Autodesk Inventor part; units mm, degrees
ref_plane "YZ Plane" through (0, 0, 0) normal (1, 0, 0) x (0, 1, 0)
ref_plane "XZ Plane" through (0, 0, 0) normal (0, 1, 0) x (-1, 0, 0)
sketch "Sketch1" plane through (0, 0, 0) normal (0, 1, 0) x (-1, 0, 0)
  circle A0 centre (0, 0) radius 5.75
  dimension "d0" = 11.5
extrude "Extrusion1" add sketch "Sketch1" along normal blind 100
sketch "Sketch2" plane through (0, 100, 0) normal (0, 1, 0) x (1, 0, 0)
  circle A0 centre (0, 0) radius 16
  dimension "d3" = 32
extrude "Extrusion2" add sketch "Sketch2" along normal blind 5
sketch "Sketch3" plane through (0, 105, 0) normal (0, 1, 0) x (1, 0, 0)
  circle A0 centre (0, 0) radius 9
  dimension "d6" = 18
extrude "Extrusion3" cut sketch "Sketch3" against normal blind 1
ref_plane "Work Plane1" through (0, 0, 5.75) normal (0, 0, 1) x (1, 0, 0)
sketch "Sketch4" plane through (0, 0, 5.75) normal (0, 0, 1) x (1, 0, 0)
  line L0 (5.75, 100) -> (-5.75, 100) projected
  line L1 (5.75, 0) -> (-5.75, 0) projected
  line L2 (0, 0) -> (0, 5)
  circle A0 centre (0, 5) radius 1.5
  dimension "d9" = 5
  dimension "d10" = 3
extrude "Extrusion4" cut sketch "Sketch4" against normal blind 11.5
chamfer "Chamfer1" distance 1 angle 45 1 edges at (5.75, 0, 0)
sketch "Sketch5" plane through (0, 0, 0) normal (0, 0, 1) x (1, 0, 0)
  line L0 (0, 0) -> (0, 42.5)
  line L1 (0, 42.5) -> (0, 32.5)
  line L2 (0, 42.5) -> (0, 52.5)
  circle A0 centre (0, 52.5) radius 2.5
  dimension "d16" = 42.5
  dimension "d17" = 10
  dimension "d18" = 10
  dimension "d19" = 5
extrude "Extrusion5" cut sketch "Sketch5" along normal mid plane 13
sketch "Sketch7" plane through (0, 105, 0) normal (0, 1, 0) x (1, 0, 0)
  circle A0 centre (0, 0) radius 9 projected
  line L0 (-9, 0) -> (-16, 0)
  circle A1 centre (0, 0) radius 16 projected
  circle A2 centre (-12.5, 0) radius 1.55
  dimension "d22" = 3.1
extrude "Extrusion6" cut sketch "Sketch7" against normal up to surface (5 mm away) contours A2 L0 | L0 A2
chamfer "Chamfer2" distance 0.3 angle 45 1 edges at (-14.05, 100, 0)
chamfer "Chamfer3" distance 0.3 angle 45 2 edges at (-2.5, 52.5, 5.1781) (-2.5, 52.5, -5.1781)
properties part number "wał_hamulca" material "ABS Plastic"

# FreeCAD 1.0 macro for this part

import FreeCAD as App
import Part
import Sketcher
from FreeCAD import Vector


def edges_at(feature, points):
    """Names of the edges that pass closest to the given points."""
    edges = feature.Shape.Edges
    near = lambda p: min(range(len(edges)), key=lambda i: edges[i].distToShape(Part.Vertex(*p))[0])
    return sorted({f"Edge{near(p) + 1}" for p in points})

doc = App.newDocument("Part")
body = doc.addObject("PartDesign::Body", "Body")

# Sketch on XZ plane
sketch1 = doc.addObject("Sketcher::SketchObject", "Sketch")
body.addObject(sketch1)
sketch1.AttachmentSupport = (doc.XZ_Plane, [""])
sketch1.MapMode = "FlatFace"
sketch1.addGeometry(Part.Circle(Vector(0, 0, 0), Vector(0, 0, 1), 5.75), False)
sketch1.addConstraint([
    Sketcher.Constraint("Coincident", 0, 3, -1, 1),
    Sketcher.Constraint("Diameter", 0, 11.5),
])
pad1 = doc.addObject("PartDesign::Pad", "Pad")
body.addObject(pad1)
pad1.Profile = sketch1
pad1.Length = 100
pad1.Reversed = True

# Sketch on XZ plane
sketch2 = doc.addObject("Sketcher::SketchObject", "Sketch001")
body.addObject(sketch2)
sketch2.AttachmentSupport = (doc.XZ_Plane, [""])
sketch2.MapMode = "FlatFace"
sketch2.AttachmentOffset = App.Placement(Vector(0, 0, -100), App.Rotation())
sketch2.addGeometry(Part.Circle(Vector(0, 0, 0), Vector(0, 0, 1), 16), False)
sketch2.addConstraint([
    Sketcher.Constraint("Coincident", 0, 3, -1, 1),
    Sketcher.Constraint("Diameter", 0, 32.0),
])
pad2 = doc.addObject("PartDesign::Pad", "Pad001")
body.addObject(pad2)
pad2.Profile = sketch2
pad2.Length = 5
pad2.Reversed = True

# Sketch on XZ plane
sketch3 = doc.addObject("Sketcher::SketchObject", "Sketch002")
body.addObject(sketch3)
sketch3.AttachmentSupport = (doc.XZ_Plane, [""])
sketch3.MapMode = "FlatFace"
sketch3.AttachmentOffset = App.Placement(Vector(0, 0, -105), App.Rotation())
sketch3.addGeometry(Part.Circle(Vector(0, 0, 0), Vector(0, 0, 1), 9), False)
sketch3.addConstraint([
    Sketcher.Constraint("Coincident", 0, 3, -1, 1),
    Sketcher.Constraint("Diameter", 0, 18.0),
])
pocket1 = doc.addObject("PartDesign::Pocket", "Pocket")
body.addObject(pocket1)
pocket1.Profile = sketch3
pocket1.Length = 1
pocket1.Reversed = True

# Sketch on XY plane
sketch4 = doc.addObject("Sketcher::SketchObject", "Sketch003")
body.addObject(sketch4)
sketch4.AttachmentSupport = (doc.XY_Plane, [""])
sketch4.MapMode = "FlatFace"
sketch4.AttachmentOffset = App.Placement(Vector(0, 0, 5.75), App.Rotation())
sketch4.addGeometry(Part.Circle(Vector(0, 5, 0), Vector(0, 0, 1), 1.5), False)
sketch4.addConstraint([
    Sketcher.Constraint("PointOnObject", 0, 3, -2),
    Sketcher.Constraint("Diameter", 0, 3.0),
    Sketcher.Constraint("DistanceY", -1, 1, 0, 3, 5.0),
])
pocket2 = doc.addObject("PartDesign::Pocket", "Pocket001")
body.addObject(pocket2)
pocket2.Profile = sketch4
pocket2.Length = 11.5
doc.recompute()

chamfer = doc.addObject("PartDesign::Chamfer", "Chamfer")
body.addObject(chamfer)
chamfer.Base = (pocket2, edges_at(pocket2, [(5.75, 0, 0)]))
chamfer.Size = 1

# Sketch on XY plane
sketch5 = doc.addObject("Sketcher::SketchObject", "Sketch004")
body.addObject(sketch5)
sketch5.AttachmentSupport = (doc.XY_Plane, [""])
sketch5.MapMode = "FlatFace"
sketch5.addGeometry(Part.Circle(Vector(0, 52.5, 0), Vector(0, 0, 1), 2.5), False)
sketch5.addConstraint([
    Sketcher.Constraint("PointOnObject", 0, 3, -2),
    Sketcher.Constraint("Diameter", 0, 5.0),
    Sketcher.Constraint("DistanceY", -1, 1, 0, 3, 52.5),
])
pocket3 = doc.addObject("PartDesign::Pocket", "Pocket002")
body.addObject(pocket3)
pocket3.Profile = sketch5
pocket3.Length = 13
pocket3.Midplane = True

# Sketch on XZ plane
sketch6 = doc.addObject("Sketcher::SketchObject", "Sketch005")
body.addObject(sketch6)
sketch6.AttachmentSupport = (doc.XZ_Plane, [""])
sketch6.MapMode = "FlatFace"
sketch6.AttachmentOffset = App.Placement(Vector(0, 0, -105), App.Rotation())
sketch6.addGeometry(Part.Circle(Vector(-12.5, 0, 0), Vector(0, 0, 1), 1.55), False)
sketch6.addConstraint([
    Sketcher.Constraint("PointOnObject", 0, 3, -1),
    Sketcher.Constraint("Diameter", 0, 3.1),
    Sketcher.Constraint("DistanceX", 0, 3, -1, 1, 12.5),
])
pocket4 = doc.addObject("PartDesign::Pocket", "Pocket003")
body.addObject(pocket4)
pocket4.Profile = sketch6
pocket4.Length = 5
pocket4.Reversed = True
doc.recompute()

chamfer2 = doc.addObject("PartDesign::Chamfer", "Chamfer001")
body.addObject(chamfer2)
chamfer2.Base = (pocket4, edges_at(pocket4, [(-14.05, 100, 0)]))
chamfer2.Size = 0.3
doc.recompute()

chamfer3 = doc.addObject("PartDesign::Chamfer", "Chamfer002")
body.addObject(chamfer3)
chamfer3.Base = (chamfer2, edges_at(chamfer2, [(-2.5, 52.5, 5.178), (-2.5, 52.5, -5.178)]))
chamfer3.Size = 0.3

doc.recompute()
